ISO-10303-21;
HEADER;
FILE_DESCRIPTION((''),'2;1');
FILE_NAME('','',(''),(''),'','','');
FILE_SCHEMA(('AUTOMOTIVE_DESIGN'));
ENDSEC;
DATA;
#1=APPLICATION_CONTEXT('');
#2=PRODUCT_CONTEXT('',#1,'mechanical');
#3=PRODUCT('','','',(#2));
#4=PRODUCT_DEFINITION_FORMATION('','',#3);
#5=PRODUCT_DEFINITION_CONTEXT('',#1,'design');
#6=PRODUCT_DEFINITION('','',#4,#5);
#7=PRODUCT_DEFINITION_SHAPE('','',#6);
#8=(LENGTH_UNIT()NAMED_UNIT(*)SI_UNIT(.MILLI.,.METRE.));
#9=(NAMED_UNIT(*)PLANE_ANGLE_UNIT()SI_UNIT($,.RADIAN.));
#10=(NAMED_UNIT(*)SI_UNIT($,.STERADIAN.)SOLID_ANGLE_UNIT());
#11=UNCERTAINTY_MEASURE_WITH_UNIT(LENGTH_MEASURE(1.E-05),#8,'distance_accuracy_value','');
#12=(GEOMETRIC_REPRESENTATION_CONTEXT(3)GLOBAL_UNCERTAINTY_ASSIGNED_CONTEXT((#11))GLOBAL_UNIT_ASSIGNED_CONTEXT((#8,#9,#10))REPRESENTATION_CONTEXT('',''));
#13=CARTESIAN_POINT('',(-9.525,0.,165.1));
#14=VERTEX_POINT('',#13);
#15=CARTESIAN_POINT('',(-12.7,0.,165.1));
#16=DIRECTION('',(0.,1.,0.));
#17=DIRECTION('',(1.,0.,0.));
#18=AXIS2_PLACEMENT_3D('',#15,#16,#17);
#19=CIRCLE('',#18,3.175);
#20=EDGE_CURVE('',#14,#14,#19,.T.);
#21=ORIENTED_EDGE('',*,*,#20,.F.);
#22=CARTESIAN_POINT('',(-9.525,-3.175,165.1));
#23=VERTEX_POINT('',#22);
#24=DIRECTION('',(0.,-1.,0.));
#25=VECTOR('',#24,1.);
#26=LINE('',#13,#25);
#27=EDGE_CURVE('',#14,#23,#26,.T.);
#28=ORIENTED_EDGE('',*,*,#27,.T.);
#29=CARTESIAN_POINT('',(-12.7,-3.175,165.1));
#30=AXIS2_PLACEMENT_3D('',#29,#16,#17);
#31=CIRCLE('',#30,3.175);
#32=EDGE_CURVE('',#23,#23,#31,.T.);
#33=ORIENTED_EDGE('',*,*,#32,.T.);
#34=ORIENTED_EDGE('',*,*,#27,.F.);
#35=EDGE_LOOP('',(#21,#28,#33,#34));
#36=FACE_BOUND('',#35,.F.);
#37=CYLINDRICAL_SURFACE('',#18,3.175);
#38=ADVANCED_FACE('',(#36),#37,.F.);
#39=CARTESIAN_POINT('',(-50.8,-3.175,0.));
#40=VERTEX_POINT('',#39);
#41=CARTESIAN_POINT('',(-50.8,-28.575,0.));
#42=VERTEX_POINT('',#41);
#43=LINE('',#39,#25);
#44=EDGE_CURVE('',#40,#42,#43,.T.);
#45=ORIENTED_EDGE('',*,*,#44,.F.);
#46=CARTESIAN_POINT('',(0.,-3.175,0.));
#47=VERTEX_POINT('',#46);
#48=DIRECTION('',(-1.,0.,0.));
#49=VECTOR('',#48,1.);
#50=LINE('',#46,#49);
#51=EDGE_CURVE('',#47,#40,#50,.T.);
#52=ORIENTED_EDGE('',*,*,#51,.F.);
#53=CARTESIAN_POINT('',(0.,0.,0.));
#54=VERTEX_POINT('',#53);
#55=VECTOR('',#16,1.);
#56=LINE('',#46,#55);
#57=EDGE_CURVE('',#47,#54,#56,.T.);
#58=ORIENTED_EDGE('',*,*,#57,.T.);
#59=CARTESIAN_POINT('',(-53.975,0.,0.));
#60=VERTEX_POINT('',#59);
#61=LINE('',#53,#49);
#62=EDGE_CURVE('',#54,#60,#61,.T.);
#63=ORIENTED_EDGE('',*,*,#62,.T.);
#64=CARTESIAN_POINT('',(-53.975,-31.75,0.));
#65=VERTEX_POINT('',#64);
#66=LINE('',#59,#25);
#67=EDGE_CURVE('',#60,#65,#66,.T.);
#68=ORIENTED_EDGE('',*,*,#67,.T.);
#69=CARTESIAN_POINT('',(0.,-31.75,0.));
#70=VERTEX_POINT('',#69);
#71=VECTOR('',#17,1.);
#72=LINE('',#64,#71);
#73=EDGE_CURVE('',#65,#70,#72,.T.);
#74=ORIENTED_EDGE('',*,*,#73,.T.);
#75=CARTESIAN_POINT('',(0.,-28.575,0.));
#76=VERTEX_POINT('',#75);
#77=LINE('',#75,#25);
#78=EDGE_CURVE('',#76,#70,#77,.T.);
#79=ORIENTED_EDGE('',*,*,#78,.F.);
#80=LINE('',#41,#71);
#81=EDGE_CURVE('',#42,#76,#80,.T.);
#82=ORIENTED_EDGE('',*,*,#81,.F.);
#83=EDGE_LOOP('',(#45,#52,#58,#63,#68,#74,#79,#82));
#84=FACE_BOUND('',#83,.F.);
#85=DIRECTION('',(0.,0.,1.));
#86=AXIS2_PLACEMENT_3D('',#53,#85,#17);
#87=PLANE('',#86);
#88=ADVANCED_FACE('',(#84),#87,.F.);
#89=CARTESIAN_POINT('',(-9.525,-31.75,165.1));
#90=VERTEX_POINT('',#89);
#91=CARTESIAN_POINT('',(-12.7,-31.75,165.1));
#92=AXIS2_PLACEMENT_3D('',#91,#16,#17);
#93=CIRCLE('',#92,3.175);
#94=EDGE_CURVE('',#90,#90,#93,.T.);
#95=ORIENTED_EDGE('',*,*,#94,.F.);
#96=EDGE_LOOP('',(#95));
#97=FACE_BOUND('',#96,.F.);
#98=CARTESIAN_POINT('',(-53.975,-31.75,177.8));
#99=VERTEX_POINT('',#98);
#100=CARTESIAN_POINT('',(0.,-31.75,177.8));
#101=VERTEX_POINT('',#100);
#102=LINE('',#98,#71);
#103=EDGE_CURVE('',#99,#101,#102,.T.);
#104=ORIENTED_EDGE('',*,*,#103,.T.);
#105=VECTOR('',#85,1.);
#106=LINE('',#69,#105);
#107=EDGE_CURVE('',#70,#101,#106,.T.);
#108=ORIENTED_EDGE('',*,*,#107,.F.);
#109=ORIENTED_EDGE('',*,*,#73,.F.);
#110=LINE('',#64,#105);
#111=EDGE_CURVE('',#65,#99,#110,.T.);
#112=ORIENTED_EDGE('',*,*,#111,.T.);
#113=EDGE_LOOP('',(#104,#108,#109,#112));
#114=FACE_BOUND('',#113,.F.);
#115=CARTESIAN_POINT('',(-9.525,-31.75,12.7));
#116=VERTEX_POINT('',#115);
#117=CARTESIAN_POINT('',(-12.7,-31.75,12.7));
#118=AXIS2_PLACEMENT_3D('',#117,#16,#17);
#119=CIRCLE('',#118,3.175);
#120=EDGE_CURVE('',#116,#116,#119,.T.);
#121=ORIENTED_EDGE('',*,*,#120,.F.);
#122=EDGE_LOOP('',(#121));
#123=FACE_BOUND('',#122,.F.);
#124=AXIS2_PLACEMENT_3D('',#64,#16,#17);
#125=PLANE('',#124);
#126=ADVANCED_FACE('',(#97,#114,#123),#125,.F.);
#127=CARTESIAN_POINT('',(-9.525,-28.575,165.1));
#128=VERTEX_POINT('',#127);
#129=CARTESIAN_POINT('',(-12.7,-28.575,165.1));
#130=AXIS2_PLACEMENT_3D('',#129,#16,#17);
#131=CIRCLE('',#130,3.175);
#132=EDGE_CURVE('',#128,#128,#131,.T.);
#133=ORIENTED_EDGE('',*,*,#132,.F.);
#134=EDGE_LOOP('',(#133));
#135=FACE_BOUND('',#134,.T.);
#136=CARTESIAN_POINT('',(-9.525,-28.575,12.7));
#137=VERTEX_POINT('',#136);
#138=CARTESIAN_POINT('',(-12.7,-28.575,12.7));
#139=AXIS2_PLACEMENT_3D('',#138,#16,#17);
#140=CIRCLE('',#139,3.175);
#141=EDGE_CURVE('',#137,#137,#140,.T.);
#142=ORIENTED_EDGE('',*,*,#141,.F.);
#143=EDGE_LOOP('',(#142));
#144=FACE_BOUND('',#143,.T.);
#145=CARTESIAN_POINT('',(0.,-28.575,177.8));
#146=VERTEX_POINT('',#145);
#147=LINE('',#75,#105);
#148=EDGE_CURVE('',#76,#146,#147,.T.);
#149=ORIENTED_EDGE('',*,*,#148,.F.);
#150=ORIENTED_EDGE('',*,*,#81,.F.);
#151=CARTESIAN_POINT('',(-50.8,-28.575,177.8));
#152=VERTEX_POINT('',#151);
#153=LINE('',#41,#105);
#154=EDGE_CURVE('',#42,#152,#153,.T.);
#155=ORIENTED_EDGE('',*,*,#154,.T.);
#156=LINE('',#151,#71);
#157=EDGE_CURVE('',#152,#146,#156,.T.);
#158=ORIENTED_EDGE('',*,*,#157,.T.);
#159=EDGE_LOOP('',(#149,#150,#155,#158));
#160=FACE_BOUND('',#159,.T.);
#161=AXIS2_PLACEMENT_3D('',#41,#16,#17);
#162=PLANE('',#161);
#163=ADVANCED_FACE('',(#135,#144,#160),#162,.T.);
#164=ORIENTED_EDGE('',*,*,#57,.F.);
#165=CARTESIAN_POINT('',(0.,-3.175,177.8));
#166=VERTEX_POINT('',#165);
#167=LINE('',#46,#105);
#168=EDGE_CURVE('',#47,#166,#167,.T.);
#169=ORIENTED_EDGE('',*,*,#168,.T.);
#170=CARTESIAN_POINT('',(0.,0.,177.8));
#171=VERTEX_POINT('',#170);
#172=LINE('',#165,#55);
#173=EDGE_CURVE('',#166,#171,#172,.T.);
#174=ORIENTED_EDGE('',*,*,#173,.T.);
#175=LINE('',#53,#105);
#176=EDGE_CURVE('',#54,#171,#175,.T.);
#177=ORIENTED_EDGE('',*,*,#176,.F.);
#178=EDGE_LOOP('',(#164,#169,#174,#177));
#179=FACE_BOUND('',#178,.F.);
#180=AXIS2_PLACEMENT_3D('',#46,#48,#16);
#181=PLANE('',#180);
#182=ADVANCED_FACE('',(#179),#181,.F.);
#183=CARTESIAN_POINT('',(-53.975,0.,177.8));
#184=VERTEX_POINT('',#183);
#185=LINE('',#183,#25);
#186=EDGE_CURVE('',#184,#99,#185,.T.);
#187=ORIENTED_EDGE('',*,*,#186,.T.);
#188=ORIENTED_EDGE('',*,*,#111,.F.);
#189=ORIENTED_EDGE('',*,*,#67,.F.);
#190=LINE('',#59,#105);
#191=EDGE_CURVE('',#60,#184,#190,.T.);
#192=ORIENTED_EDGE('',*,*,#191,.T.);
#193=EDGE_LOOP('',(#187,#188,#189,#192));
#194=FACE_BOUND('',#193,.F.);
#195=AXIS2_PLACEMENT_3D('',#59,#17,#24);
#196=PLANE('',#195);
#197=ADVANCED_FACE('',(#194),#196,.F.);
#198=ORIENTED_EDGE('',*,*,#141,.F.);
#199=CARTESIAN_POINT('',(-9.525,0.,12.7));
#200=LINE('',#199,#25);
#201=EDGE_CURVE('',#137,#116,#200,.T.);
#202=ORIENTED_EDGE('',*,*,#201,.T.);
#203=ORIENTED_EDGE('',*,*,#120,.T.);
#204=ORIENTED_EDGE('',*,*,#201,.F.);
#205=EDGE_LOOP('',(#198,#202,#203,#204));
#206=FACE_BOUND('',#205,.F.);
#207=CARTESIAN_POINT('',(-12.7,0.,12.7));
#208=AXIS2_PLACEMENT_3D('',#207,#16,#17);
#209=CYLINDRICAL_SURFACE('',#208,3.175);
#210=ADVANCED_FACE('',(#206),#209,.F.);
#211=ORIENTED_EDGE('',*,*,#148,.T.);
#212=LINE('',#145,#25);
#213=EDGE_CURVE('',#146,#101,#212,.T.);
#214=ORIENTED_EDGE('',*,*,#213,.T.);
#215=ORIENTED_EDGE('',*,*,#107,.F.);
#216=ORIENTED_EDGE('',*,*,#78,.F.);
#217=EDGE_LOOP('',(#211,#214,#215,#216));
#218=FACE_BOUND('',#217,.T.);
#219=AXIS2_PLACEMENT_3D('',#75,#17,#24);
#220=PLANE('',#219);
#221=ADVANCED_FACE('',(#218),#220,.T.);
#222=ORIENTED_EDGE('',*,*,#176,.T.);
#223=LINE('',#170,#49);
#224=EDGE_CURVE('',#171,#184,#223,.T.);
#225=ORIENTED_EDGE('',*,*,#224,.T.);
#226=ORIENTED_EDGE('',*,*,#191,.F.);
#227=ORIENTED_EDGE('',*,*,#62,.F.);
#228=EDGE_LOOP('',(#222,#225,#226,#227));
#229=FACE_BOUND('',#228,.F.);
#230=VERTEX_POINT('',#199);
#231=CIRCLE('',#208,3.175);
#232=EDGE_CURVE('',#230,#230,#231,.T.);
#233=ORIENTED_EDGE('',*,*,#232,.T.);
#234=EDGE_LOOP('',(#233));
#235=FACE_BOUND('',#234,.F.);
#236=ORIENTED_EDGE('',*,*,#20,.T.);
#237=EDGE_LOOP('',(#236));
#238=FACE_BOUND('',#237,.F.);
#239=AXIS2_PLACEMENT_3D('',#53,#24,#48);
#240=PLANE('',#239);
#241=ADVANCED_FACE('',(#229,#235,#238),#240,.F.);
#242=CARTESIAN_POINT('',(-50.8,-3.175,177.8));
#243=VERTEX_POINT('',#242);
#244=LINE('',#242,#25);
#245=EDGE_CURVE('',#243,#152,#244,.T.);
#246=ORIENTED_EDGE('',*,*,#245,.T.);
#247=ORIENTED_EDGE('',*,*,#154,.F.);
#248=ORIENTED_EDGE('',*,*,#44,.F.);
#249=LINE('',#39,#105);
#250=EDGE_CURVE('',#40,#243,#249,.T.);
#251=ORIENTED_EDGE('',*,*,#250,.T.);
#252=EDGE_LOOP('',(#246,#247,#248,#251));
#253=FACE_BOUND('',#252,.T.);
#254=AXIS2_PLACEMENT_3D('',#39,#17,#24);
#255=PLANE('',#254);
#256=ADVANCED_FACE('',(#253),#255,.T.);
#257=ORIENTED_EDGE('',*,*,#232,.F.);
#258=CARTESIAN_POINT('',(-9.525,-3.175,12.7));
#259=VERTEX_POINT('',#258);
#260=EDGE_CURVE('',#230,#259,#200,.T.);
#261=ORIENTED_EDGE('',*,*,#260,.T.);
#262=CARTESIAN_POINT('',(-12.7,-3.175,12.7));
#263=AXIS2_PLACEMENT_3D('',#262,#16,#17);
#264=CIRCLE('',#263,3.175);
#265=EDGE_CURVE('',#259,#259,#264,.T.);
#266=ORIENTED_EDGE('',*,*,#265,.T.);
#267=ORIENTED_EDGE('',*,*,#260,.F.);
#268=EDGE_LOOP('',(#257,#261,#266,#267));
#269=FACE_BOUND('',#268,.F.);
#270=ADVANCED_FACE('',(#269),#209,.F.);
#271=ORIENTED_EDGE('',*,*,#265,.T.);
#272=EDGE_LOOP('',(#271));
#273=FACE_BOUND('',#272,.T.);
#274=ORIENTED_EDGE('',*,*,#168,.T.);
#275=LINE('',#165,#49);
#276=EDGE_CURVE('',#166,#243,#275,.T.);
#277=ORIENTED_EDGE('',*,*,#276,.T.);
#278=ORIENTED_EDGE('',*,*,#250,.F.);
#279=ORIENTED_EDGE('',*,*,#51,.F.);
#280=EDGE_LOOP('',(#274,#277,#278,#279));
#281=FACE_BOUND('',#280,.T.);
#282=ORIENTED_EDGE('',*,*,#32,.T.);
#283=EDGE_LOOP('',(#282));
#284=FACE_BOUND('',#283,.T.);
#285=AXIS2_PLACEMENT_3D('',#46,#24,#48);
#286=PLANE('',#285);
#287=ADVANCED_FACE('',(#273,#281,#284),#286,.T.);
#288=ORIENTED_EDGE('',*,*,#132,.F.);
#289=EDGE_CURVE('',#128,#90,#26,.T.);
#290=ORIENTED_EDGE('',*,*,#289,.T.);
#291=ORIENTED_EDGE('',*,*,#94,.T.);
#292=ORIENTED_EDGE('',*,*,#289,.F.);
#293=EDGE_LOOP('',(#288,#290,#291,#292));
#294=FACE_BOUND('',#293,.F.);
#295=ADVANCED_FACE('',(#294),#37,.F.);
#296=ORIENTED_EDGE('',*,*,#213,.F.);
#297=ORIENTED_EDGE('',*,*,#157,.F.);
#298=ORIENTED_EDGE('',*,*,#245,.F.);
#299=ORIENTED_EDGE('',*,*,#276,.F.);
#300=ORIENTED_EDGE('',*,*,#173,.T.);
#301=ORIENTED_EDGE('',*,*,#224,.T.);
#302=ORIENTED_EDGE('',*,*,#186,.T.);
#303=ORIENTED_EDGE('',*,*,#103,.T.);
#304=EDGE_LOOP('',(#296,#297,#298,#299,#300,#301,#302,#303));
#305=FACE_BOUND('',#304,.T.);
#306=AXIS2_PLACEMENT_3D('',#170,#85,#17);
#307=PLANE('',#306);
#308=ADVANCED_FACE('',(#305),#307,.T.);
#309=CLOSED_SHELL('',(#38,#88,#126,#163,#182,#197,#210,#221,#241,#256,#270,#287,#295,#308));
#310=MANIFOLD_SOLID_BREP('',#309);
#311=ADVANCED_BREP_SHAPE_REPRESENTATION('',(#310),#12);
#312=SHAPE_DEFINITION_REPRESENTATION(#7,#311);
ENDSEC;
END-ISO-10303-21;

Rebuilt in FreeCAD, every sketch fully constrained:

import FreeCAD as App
import Part
import Sketcher
from FreeCAD import Vector
Q = App.Units.Quantity


def add_polygon(sketch, points):
    """Adds a closed chain of lines whose ends are joined by coincident constraints."""
    first, n = sketch.GeometryCount, len(points)
    for a, b in zip(points, points[1:] + points[:1]):
        sketch.addGeometry(Part.LineSegment(App.Vector(*a, 0), App.Vector(*b, 0)), False)
    for i in range(n):
        sketch.addConstraint(Sketcher.Constraint("Coincident", first + i, 2, first + (i + 1) % n, 1))

doc = App.newDocument("Part")
body = doc.addObject("PartDesign::Body", "Body")

# Sketch on XY plane
sketch1 = doc.addObject("Sketcher::SketchObject", "Sketch")
body.addObject(sketch1)
sketch1.AttachmentSupport = (doc.XY_Plane, [""])
sketch1.MapMode = "FlatFace"
add_polygon(sketch1, [(0, -3.2), (0, 0), (-54, 0), (-54, -31.8), (0, -31.8), (0, -28.6), (-50.8, -28.6), (-50.8, -3.2)])  # lines 0-7
sketch1.addConstraint([
    Sketcher.Constraint("Vertical", 0),
    Sketcher.Constraint("Horizontal", 1),
    Sketcher.Constraint("Vertical", 2),
    Sketcher.Constraint("Horizontal", 3),
    Sketcher.Constraint("Vertical", 4),
    Sketcher.Constraint("Horizontal", 5),
    Sketcher.Constraint("Vertical", 6),
    Sketcher.Constraint("Horizontal", 7),
    Sketcher.Constraint("Coincident", 0, 2, -1, 1),
    Sketcher.Constraint("PointOnObject", 3, 2, -2),
    Sketcher.Constraint("Equal", 0, 4),
    Sketcher.Constraint("DistanceX", 5, 2, 5, 1, Q("2 in")),
    Sketcher.Constraint("DistanceY", 6, 1, 6, 2, Q("1 in")),
    Sketcher.Constraint("DistanceY", 0, 1, 0, 2, Q("0.125 in")),
    Sketcher.Constraint("DistanceX", 2, 2, 5, 2, Q("0.125 in")),
])
pad1 = doc.addObject("PartDesign::Pad", "Pad")
body.addObject(pad1)
pad1.Profile = sketch1
pad1.Length = Q("7 in")

# Sketch on XZ plane
sketch2 = doc.addObject("Sketcher::SketchObject", "Sketch001")
body.addObject(sketch2)
sketch2.AttachmentSupport = (doc.XZ_Plane, [""])
sketch2.MapMode = "FlatFace"
sketch2.addGeometry([
    Part.Circle(Vector(-12.7, 165.1, 0), Vector(0, 0, 1), 3.2),
    Part.Circle(Vector(-12.7, 12.7, 0), Vector(0, 0, 1), 3.2),
], False)
sketch2.addConstraint([
    Sketcher.Constraint("Equal", 0, 1),
    Sketcher.Constraint("Vertical", 0, 3, 1, 3),
    Sketcher.Constraint("Diameter", 0, Q("0.25 in")),
    Sketcher.Constraint("DistanceX", 0, 3, -1, 1, Q("0.5 in")),
    Sketcher.Constraint("DistanceY", -1, 1, 1, 3, Q("0.5 in")),
    Sketcher.Constraint("DistanceY", 1, 3, 0, 3, Q("6 in")),
])
pocket1 = doc.addObject("PartDesign::Pocket", "Pocket")
body.addObject(pocket1)
pocket1.Profile = sketch2
pocket1.Type = "ThroughAll"
pocket1.Reversed = True

doc.recompute()
